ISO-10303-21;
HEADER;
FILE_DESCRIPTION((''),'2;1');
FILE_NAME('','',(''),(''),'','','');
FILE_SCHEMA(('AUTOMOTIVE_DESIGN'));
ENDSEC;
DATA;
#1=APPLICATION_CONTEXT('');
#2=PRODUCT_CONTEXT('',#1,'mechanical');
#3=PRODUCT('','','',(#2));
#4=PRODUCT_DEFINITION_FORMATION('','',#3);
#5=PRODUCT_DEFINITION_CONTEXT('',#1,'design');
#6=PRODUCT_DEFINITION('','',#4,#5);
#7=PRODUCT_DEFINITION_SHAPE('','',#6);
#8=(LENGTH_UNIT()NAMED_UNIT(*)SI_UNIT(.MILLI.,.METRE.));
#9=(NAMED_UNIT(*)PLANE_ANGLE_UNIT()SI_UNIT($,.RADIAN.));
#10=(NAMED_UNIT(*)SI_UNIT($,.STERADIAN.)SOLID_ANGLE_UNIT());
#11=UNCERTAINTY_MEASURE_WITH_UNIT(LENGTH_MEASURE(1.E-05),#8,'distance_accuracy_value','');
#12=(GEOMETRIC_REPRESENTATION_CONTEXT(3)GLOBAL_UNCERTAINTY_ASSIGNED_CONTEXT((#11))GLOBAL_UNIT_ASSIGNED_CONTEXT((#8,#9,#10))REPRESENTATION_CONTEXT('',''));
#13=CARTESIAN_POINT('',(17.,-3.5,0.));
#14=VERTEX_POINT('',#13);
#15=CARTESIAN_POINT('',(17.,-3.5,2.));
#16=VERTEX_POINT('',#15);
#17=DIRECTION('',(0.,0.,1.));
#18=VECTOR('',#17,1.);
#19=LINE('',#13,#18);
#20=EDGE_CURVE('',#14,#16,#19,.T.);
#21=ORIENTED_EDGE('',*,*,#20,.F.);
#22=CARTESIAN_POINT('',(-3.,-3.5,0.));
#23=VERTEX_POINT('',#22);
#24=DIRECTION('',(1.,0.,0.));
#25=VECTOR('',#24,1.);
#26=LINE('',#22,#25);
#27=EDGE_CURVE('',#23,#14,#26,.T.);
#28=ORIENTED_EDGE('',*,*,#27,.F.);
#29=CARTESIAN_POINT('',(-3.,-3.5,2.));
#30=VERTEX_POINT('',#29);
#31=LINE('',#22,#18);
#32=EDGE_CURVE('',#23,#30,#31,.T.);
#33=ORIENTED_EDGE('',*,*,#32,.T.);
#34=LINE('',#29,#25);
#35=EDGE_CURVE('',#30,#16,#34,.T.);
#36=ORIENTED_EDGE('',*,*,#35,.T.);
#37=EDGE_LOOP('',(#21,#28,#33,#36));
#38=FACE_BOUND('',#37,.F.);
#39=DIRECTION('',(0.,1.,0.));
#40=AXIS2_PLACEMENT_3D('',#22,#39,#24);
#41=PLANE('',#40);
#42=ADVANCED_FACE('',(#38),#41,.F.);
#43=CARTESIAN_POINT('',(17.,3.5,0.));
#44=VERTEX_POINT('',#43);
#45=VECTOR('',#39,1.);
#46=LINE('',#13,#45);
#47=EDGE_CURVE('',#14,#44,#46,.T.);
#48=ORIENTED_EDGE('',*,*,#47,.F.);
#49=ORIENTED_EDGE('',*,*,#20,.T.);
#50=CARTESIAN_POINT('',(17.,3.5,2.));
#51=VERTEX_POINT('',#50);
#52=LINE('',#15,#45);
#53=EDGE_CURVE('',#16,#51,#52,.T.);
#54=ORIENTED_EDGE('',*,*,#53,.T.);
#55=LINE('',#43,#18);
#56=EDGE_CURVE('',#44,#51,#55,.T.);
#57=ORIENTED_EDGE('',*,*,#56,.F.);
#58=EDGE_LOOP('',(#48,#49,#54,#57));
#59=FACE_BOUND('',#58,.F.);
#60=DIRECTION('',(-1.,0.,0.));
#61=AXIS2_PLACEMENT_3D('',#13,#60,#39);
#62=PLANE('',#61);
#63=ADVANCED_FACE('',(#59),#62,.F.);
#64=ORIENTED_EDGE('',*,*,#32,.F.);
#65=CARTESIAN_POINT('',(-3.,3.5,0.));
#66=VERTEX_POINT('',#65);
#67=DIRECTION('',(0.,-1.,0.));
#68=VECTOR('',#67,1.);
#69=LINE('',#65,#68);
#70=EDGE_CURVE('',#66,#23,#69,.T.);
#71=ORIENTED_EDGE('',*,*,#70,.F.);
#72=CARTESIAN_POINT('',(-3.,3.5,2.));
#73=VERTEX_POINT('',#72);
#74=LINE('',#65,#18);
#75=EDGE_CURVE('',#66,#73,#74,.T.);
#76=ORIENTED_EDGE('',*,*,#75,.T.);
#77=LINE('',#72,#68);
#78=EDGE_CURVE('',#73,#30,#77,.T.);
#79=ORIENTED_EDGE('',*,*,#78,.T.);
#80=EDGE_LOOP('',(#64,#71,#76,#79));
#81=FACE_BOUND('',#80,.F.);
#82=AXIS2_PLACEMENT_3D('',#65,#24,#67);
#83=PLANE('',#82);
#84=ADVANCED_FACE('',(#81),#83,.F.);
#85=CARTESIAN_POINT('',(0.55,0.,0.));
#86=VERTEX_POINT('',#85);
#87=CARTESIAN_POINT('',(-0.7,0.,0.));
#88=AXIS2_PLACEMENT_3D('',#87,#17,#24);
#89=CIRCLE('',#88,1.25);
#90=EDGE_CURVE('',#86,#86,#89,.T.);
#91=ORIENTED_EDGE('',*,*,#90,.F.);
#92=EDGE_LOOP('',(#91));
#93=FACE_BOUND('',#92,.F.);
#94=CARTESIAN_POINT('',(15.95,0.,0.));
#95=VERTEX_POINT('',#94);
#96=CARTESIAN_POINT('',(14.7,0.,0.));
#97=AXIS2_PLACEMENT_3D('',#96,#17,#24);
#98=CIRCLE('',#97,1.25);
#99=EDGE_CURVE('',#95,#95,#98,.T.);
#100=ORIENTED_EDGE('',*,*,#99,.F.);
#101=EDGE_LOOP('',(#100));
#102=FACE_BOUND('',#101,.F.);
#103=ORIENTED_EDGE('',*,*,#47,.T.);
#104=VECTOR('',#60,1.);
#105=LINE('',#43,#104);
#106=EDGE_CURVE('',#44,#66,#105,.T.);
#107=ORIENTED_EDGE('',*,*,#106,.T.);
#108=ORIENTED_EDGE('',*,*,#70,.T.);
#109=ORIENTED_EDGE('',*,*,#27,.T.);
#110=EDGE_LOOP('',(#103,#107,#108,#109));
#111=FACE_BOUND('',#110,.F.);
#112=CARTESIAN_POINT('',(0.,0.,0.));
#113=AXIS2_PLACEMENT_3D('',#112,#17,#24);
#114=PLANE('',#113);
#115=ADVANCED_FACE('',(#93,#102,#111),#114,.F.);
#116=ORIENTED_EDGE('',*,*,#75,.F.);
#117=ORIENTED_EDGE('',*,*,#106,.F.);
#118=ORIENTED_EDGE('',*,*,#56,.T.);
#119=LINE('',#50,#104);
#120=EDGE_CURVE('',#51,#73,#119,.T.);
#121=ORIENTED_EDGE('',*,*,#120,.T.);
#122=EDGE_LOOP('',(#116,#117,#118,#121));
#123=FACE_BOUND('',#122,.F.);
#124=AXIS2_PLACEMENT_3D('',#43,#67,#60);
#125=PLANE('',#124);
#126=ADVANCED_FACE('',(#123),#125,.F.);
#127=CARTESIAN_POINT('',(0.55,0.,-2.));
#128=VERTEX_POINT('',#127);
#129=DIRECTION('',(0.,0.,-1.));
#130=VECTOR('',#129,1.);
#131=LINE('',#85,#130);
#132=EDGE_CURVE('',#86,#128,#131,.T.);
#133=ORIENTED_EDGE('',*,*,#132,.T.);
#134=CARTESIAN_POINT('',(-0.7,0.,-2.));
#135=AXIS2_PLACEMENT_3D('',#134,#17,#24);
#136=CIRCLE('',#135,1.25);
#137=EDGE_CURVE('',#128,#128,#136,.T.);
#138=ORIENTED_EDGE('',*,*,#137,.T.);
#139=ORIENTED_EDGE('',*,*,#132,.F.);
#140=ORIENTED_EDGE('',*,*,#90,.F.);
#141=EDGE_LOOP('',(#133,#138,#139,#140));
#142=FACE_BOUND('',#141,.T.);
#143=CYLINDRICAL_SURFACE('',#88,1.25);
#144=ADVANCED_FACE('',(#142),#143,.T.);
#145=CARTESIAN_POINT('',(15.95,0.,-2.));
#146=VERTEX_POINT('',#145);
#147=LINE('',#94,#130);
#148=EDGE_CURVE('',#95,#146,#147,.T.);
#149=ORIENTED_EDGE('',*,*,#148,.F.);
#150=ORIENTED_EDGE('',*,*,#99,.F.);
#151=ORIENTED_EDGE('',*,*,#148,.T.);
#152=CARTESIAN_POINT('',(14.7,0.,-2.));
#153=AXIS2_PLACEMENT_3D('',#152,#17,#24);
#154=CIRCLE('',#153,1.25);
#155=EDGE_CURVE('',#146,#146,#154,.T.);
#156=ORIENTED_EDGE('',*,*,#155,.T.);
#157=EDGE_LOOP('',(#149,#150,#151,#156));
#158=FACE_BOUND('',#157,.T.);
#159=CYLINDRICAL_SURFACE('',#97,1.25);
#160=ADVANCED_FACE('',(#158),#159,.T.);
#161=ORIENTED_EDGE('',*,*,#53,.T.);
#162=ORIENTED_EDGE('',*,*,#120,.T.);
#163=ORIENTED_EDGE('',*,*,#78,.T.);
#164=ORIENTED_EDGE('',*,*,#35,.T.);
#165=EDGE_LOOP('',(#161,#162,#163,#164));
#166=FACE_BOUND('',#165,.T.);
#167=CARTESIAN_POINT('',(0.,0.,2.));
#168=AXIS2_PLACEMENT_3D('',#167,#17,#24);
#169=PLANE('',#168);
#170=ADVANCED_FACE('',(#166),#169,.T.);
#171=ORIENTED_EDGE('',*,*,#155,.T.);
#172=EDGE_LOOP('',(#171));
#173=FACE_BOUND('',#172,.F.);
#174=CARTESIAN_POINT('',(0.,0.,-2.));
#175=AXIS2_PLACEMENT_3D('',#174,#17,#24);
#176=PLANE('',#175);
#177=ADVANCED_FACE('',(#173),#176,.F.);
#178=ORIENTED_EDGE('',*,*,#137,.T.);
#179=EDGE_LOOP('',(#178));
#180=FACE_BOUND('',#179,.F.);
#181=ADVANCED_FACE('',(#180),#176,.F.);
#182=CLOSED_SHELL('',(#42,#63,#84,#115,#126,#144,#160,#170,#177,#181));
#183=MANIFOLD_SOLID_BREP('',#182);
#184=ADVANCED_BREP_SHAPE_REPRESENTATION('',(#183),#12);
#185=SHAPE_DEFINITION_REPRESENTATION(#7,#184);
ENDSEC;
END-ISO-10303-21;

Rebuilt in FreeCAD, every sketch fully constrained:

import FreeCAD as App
import Part
import Sketcher
from FreeCAD import Vector

doc = App.newDocument("Part")
params = doc.addObject("Spreadsheet::Sheet", "Params")
for row, (alias, value) in enumerate([
    ("sketch1_width", "20 mm"),
    ("sketch1_height", "7 mm"),
    ("pad1_length", "2 mm"),
    ("sketch2_diameter", "2.5 mm"),
    ("pad2_length", "2 mm"),
], start=1):
    params.set(f"A{row}", alias)
    params.set(f"B{row}", "=" + value)
    params.setAlias(f"B{row}", alias)

body = doc.addObject("PartDesign::Body", "Body")

# Sketch on XY plane
sketch1 = body.newObject("Sketcher::SketchObject", "Sketch")
sketch1.AttachmentSupport = (doc.getObject("XY_Plane"), [""])
sketch1.MapMode = "FlatFace"
sketch1.addGeometry([
    Part.LineSegment(Vector(-3, 4, 0), Vector(-3, -4, 0)),
    Part.LineSegment(Vector(-3, -4, 0), Vector(17, -4, 0)),
    Part.LineSegment(Vector(17, -4, 0), Vector(17, 4, 0)),
    Part.LineSegment(Vector(17, 4, 0), Vector(-3, 4, 0)),
], False)
sketch1.addConstraint([
    Sketcher.Constraint("Coincident", 0, 2, 1, 1),
    Sketcher.Constraint("Coincident", 1, 2, 2, 1),
    Sketcher.Constraint("Coincident", 2, 2, 3, 1),
    Sketcher.Constraint("Coincident", 3, 2, 0, 1),
    Sketcher.Constraint("Vertical", 0),
    Sketcher.Constraint("Horizontal", 1),
    Sketcher.Constraint("Vertical", 2),
    Sketcher.Constraint("Horizontal", 3),
    Sketcher.Constraint("DistanceX", 1, 1, 1, 2, 20.0),
    Sketcher.Constraint("DistanceY", 0, 2, 0, 1, 7.0),
    Sketcher.Constraint("DistanceX", 0, 2, -1, 1, 3.0),
    Sketcher.Constraint("DistanceY", 0, 2, -1, 1, 3.5),
])
sketch1.setExpression("Constraints[8]", "Params.sketch1_width")
sketch1.setExpression("Constraints[9]", "Params.sketch1_height")
pad1 = body.newObject("PartDesign::Pad", "Pad")
pad1.Profile = sketch1
pad1.setExpression("Length", "Params.pad1_length")

# Sketch on XY plane
sketch2 = body.newObject("Sketcher::SketchObject", "Sketch001")
sketch2.AttachmentSupport = (doc.getObject("XY_Plane"), [""])
sketch2.MapMode = "FlatFace"
sketch2.addGeometry([
    Part.Circle(Vector(14.7, 0, 0), Vector(0, 0, 1), 1.2),
    Part.Circle(Vector(-0.7, 0, 0), Vector(0, 0, 1), 1.2),
], False)
sketch2.addConstraint([
    Sketcher.Constraint("Equal", 0, 1),
    Sketcher.Constraint("PointOnObject", 0, 3, -1),
    Sketcher.Constraint("PointOnObject", 1, 3, -1),
    Sketcher.Constraint("Diameter", 0, 2.5),
    Sketcher.Constraint("DistanceX", -1, 1, 0, 3, 14.7),
    Sketcher.Constraint("DistanceX", 1, 3, -1, 1, 0.7),
])
sketch2.setExpression("Constraints[3]", "Params.sketch2_diameter")
pad2 = body.newObject("PartDesign::Pad", "Pad001")
pad2.Profile = sketch2
pad2.setExpression("Length", "Params.pad2_length")
pad2.Reversed = True

doc.recompute()
